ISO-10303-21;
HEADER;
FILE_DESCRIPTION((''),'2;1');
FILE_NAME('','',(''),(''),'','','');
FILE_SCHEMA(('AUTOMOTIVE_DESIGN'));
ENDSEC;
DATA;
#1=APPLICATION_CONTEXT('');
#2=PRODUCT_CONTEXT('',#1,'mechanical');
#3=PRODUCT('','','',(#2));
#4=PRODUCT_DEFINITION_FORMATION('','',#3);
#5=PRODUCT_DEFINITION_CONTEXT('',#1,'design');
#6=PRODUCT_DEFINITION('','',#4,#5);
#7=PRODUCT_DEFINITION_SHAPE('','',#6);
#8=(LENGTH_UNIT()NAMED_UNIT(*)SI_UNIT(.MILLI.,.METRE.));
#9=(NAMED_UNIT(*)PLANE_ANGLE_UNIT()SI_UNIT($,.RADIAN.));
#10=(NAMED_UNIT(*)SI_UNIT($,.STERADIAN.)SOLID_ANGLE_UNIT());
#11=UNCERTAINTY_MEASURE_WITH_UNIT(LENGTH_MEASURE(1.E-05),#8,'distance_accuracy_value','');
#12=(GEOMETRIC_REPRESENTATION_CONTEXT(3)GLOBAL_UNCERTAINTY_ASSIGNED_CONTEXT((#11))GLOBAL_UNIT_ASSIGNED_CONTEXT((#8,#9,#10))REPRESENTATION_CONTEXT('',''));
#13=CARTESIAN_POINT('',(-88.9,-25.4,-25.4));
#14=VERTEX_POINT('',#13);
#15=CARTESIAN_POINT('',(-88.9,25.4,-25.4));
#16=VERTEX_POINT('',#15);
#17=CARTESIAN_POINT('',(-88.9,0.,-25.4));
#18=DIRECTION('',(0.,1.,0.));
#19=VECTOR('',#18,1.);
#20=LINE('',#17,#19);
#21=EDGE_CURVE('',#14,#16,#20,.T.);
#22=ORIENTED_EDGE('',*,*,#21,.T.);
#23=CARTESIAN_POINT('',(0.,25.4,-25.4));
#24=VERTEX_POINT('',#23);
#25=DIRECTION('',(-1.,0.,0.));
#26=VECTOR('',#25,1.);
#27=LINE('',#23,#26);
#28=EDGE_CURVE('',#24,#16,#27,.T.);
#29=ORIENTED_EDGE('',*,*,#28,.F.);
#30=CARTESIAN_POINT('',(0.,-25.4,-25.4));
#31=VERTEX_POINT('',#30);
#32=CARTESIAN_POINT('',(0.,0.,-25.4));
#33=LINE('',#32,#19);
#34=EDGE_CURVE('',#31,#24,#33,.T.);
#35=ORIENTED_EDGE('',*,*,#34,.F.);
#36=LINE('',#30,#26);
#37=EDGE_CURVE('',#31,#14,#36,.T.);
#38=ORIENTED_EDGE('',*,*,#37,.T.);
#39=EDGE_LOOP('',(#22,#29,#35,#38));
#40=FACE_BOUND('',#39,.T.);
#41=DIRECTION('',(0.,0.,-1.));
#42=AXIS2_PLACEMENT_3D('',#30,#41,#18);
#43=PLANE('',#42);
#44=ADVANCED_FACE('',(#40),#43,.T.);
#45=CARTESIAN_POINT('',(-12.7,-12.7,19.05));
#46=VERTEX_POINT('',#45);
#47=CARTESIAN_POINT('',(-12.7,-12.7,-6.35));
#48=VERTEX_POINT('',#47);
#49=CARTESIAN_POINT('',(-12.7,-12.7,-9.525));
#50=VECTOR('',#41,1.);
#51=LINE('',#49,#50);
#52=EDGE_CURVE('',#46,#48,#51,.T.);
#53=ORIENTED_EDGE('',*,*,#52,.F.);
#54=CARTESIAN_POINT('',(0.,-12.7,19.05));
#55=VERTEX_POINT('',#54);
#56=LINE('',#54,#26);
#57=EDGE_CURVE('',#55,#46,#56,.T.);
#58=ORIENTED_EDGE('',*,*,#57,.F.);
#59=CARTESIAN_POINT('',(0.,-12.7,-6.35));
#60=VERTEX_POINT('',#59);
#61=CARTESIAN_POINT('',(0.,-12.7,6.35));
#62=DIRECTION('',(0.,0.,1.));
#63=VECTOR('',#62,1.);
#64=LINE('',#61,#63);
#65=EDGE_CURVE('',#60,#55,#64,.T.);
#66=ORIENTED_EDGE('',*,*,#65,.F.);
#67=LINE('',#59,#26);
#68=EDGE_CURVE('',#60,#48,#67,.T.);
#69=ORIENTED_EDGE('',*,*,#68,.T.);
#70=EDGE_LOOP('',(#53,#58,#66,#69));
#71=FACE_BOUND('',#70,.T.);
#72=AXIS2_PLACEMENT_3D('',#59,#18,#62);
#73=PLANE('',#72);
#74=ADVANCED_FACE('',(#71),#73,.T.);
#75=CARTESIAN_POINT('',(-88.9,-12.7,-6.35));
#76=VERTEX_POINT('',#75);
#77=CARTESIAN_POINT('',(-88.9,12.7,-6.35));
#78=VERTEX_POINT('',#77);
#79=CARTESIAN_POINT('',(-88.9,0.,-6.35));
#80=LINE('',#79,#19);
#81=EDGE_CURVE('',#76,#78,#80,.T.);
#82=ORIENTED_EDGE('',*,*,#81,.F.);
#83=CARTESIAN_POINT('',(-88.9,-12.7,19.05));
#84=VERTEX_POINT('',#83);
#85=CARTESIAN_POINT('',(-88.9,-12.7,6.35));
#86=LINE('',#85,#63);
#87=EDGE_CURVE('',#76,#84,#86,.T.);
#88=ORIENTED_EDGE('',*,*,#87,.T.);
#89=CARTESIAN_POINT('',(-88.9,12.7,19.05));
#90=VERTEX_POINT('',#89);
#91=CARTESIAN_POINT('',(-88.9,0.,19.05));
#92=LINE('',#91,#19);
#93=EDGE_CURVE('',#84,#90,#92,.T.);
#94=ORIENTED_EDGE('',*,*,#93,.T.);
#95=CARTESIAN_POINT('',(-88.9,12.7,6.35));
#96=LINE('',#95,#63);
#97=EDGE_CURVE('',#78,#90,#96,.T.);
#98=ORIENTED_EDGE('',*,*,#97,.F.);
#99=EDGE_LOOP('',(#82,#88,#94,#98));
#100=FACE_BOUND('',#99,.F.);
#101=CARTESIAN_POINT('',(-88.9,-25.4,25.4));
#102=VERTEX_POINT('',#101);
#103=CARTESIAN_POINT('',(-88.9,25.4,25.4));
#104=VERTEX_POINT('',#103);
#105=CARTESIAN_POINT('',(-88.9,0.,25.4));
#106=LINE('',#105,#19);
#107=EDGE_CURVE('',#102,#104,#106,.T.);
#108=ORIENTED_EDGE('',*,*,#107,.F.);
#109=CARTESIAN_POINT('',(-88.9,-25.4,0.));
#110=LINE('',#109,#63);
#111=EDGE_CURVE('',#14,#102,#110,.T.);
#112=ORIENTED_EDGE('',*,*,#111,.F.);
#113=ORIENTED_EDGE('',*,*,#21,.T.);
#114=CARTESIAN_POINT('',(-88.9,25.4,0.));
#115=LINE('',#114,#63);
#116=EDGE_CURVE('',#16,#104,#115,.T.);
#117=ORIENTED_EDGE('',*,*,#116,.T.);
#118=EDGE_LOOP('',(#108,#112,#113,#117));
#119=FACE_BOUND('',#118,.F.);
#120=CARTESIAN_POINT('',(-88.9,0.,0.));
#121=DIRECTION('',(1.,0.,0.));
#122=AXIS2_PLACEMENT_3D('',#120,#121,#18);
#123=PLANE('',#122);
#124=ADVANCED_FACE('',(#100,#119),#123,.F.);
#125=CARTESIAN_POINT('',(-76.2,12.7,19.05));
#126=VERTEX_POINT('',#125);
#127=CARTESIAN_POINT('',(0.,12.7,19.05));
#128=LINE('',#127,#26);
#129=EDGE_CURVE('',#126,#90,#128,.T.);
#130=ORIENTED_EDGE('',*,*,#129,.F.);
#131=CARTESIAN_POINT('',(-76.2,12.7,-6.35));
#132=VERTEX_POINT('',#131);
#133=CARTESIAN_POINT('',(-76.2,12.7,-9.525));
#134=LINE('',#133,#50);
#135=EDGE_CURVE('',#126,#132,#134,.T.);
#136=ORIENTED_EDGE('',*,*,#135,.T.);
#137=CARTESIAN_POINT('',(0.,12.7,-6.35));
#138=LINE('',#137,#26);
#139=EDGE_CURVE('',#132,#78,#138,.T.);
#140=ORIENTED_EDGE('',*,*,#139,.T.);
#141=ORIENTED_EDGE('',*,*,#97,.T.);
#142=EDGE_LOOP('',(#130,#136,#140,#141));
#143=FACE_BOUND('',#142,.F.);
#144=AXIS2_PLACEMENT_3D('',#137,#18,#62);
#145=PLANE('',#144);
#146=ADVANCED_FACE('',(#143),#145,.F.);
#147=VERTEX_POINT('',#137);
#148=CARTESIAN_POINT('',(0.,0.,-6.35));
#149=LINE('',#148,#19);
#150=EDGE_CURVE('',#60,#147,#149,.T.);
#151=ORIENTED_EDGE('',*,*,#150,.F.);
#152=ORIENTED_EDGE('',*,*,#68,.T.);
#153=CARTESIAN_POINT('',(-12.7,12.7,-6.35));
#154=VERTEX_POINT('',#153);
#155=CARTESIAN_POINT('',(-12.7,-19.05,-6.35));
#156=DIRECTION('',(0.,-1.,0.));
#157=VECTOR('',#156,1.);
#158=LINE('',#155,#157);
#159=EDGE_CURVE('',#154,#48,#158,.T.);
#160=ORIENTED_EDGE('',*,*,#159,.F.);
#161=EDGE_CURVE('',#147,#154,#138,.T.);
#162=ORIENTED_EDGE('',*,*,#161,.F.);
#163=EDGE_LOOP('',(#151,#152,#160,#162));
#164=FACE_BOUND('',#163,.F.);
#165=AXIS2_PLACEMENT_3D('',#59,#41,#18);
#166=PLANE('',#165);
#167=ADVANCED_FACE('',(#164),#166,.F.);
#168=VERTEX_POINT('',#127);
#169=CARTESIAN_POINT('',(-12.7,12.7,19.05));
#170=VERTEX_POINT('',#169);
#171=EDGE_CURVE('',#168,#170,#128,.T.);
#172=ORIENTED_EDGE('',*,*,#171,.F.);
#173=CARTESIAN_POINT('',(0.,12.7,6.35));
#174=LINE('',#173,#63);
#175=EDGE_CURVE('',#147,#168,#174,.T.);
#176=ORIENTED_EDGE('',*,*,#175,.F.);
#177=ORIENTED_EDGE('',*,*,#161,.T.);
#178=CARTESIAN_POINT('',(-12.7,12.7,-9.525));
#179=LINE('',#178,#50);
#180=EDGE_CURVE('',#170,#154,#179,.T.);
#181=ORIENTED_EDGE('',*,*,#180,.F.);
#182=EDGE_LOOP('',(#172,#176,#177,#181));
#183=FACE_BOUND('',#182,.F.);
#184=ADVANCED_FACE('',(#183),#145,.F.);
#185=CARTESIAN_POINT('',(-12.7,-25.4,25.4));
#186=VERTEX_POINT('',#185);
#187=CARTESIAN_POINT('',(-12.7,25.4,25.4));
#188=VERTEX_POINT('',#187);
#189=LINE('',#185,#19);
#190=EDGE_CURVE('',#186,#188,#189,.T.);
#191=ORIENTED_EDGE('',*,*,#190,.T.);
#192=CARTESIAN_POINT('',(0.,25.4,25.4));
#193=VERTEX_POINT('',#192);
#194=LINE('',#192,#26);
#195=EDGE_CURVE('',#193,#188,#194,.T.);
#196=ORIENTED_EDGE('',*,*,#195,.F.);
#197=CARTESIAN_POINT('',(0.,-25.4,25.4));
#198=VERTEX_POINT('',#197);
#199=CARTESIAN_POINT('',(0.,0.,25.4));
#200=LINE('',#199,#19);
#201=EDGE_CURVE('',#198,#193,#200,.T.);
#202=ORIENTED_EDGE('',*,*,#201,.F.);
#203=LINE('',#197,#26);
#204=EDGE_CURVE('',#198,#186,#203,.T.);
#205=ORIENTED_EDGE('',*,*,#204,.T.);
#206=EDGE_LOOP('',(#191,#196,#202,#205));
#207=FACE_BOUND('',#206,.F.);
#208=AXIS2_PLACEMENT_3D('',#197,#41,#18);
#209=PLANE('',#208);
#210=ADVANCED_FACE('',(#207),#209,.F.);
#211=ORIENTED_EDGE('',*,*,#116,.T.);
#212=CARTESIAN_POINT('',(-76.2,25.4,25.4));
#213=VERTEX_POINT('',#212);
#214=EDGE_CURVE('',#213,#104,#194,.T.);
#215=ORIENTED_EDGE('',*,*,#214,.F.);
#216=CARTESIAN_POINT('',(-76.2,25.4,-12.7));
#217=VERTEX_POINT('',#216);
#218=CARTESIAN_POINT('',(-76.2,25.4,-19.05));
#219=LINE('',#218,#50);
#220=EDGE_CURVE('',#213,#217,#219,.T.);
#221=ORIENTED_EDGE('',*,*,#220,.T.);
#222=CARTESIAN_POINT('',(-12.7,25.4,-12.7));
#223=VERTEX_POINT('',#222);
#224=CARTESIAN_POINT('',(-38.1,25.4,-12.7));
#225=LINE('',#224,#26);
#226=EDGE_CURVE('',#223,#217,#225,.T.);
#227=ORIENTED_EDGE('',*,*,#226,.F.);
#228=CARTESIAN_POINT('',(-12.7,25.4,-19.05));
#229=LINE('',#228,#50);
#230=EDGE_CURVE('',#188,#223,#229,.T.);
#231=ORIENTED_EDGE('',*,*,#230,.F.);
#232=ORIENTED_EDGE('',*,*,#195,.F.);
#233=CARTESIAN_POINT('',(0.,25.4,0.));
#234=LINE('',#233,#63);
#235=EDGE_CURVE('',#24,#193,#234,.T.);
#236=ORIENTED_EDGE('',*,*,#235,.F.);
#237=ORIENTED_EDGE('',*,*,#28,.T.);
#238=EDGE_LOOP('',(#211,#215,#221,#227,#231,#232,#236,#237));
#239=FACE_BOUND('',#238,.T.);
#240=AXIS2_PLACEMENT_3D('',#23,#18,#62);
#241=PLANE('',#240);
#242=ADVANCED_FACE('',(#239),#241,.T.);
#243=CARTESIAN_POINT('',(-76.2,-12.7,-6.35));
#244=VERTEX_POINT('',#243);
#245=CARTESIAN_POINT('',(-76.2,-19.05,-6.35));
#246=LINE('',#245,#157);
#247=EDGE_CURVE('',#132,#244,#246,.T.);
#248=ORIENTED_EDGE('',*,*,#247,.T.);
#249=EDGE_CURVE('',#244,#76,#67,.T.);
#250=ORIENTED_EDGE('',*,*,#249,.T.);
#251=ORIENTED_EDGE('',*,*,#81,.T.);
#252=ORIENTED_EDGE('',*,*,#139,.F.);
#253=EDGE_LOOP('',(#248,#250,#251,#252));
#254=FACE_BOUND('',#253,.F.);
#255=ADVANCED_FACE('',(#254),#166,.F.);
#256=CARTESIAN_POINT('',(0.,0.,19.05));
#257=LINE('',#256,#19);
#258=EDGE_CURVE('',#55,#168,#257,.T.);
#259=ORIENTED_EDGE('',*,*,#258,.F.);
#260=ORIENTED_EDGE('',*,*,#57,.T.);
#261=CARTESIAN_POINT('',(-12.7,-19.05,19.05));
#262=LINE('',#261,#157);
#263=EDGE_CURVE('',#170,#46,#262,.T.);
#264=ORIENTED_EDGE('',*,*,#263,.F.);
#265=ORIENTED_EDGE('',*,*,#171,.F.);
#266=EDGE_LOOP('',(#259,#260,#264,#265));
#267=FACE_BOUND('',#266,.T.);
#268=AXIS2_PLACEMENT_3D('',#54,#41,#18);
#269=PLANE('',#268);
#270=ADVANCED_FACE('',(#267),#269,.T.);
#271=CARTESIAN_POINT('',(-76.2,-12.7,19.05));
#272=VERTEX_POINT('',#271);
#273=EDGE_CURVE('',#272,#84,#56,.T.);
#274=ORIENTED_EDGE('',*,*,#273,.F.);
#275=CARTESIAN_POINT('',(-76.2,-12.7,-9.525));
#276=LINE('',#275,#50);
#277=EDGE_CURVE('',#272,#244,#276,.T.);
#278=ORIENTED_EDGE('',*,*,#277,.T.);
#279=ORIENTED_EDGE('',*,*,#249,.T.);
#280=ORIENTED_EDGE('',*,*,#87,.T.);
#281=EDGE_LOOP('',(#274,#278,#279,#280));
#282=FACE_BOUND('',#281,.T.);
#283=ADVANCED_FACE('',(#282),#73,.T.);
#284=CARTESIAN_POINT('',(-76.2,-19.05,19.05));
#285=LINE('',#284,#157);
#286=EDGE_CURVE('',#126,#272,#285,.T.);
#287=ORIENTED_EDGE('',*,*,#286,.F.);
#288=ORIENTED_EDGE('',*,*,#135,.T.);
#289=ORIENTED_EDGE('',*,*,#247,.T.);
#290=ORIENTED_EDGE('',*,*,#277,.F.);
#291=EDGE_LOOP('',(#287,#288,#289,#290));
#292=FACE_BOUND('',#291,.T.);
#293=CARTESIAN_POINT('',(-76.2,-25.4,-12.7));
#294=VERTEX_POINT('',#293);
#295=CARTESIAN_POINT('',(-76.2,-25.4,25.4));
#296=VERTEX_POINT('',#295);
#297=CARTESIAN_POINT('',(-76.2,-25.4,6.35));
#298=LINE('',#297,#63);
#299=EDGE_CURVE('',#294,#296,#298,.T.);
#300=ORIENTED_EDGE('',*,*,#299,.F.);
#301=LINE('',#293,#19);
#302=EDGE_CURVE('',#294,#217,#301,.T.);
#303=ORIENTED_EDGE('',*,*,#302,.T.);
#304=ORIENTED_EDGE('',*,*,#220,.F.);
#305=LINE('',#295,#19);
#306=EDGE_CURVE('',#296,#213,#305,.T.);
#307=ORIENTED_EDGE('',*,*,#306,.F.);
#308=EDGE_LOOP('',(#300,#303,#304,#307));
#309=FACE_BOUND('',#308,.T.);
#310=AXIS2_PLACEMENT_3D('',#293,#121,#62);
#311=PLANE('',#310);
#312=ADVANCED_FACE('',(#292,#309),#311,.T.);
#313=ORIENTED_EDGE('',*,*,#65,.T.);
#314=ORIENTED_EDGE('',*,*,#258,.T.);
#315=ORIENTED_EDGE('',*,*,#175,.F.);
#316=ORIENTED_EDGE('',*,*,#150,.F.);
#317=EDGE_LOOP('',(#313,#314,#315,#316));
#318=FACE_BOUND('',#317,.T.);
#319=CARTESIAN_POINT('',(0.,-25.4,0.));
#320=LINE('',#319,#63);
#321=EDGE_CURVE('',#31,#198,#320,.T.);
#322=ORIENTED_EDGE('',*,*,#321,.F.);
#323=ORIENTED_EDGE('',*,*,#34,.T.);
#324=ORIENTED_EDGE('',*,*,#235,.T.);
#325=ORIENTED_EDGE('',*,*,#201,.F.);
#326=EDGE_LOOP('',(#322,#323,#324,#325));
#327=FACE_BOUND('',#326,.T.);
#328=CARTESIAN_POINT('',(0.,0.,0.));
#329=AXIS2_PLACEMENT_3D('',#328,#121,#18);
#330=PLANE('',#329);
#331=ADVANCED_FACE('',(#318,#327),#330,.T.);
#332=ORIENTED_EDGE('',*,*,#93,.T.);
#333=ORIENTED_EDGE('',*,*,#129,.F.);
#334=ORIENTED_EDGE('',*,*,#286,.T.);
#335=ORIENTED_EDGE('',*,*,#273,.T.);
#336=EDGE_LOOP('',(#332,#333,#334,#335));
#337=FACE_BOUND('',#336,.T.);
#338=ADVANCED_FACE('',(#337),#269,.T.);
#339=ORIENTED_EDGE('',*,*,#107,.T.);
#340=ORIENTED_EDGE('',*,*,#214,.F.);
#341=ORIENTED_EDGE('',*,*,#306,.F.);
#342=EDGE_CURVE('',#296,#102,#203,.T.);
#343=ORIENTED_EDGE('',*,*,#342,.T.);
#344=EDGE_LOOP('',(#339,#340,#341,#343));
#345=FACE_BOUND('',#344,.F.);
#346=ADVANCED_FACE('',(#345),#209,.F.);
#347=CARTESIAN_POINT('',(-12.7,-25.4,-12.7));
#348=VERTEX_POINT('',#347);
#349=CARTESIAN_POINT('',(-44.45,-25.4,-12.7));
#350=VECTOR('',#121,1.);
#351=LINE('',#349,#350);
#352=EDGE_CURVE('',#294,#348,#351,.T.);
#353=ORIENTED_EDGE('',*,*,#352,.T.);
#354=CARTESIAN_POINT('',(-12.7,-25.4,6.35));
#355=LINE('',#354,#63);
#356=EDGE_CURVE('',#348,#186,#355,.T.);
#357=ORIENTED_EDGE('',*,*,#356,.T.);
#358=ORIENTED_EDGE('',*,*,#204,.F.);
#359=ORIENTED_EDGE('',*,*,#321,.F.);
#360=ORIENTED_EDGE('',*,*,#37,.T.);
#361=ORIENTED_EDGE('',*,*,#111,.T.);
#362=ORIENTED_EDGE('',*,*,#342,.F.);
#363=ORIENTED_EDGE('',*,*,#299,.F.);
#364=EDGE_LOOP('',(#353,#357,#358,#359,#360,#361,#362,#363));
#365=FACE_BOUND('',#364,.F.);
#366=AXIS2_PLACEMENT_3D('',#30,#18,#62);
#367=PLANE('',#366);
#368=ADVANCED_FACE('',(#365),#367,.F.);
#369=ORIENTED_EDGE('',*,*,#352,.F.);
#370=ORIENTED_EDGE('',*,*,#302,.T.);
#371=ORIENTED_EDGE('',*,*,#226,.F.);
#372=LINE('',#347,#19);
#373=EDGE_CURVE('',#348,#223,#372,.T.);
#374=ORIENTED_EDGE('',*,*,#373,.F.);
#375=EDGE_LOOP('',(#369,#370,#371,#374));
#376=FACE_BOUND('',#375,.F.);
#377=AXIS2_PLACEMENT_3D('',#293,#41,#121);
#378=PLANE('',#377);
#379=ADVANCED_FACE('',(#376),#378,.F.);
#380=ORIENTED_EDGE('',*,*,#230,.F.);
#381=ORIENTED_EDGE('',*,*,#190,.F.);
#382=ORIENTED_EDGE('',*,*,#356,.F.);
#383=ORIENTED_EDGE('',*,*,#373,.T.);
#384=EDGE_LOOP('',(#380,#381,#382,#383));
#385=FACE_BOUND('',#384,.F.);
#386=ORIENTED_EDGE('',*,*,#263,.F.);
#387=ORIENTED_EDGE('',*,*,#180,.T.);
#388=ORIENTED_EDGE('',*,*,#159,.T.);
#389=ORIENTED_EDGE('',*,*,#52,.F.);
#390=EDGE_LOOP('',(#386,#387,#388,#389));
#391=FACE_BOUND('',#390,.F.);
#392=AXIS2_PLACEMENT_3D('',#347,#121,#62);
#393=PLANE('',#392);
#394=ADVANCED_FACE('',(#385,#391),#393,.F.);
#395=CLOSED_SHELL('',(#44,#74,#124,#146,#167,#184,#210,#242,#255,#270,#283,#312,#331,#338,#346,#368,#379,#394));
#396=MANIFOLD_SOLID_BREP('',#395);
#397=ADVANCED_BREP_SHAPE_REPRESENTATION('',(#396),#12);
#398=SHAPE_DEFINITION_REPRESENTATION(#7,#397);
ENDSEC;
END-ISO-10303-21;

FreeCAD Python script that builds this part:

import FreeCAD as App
import Part
import Sketcher

V = App.Vector
Q = App.Units.Quantity


def add_polygon(sketch, points):
    """Adds a closed chain of lines whose ends are joined by coincident constraints."""
    first, n = sketch.GeometryCount, len(points)
    for a, b in zip(points, points[1:] + points[:1]):
        sketch.addGeometry(Part.LineSegment(App.Vector(*a, 0), App.Vector(*b, 0)), False)
    for i in range(n):
        sketch.addConstraint(Sketcher.Constraint("Coincident", first + i, 2, first + (i + 1) % n, 1))

doc = App.newDocument("Part")
body = doc.addObject("PartDesign::Body", "Body")

# Sketch on YZ plane
sketch1 = doc.addObject("Sketcher::SketchObject", "Sketch")
body.addObject(sketch1)
sketch1.AttachmentSupport = (doc.YZ_Plane, [""])
sketch1.MapMode = "FlatFace"
add_polygon(sketch1, [(-25, 25), (-25, -25), (25, -25), (25, 25)])  # lines 0-3
add_polygon(sketch1, [(13, -6), (-13, -6), (-13, 19), (13, 19)])  # lines 4-7
sketch1.addConstraint(Sketcher.Constraint("Vertical", 0))
sketch1.addConstraint(Sketcher.Constraint("Horizontal", 1))
sketch1.addConstraint(Sketcher.Constraint("Vertical", 2))
sketch1.addConstraint(Sketcher.Constraint("Horizontal", 3))
sketch1.addConstraint(Sketcher.Constraint("Horizontal", 4))
sketch1.addConstraint(Sketcher.Constraint("Vertical", 5))
sketch1.addConstraint(Sketcher.Constraint("Horizontal", 6))
sketch1.addConstraint(Sketcher.Constraint("Vertical", 7))
sketch1.addConstraint(Sketcher.Constraint("Symmetric", 0, 2, 2, 2, -1, 1))
sketch1.addConstraint(Sketcher.Constraint("Equal", 3, 0))
sketch1.addConstraint(Sketcher.Constraint("Equal", 6, 5))
sketch1.addConstraint(Sketcher.Constraint("DistanceX", 1, 1, 1, 2, Q("2 in")))
sketch1.addConstraint(Sketcher.Constraint("DistanceX", 4, 2, 4, 1, Q("1 in")))
sketch1.addConstraint(Sketcher.Constraint("DistanceX", 4, 2, -1, 1, Q("0.5 in")))
sketch1.addConstraint(Sketcher.Constraint("DistanceY", 4, 2, -1, 1, Q("0.25 in")))
pad1 = doc.addObject("PartDesign::Pad", "Pad")
body.addObject(pad1)
pad1.Profile = sketch1
pad1.Length = Q("3.5 in")
pad1.Reversed = True

# Sketch on XZ plane
sketch2 = doc.addObject("Sketcher::SketchObject", "Sketch001")
body.addObject(sketch2)
sketch2.AttachmentSupport = (doc.XZ_Plane, [""])
sketch2.MapMode = "FlatFace"
sketch2.AttachmentOffset = App.Placement(V(0, 0, 1 * 25.4), App.Rotation())
add_polygon(sketch2, [(-76, 25), (-76, -13), (-13, -13), (-13, 25)])  # lines 0-3
sketch2.addConstraint(Sketcher.Constraint("Vertical", 0))
sketch2.addConstraint(Sketcher.Constraint("Horizontal", 1))
sketch2.addConstraint(Sketcher.Constraint("Vertical", 2))
sketch2.addConstraint(Sketcher.Constraint("Horizontal", 3))
sketch2.addConstraint(Sketcher.Constraint("DistanceX", 1, 1, 1, 2, Q("2.5 in")))
sketch2.addConstraint(Sketcher.Constraint("DistanceY", 0, 2, 0, 1, Q("1.5 in")))
sketch2.addConstraint(Sketcher.Constraint("DistanceX", 0, 2, -1, 1, Q("3 in")))
sketch2.addConstraint(Sketcher.Constraint("DistanceY", -1, 1, 2, 2, Q("1 in")))
pocket1 = doc.addObject("PartDesign::Pocket", "Pocket")
body.addObject(pocket1)
pocket1.Profile = sketch2
pocket1.Type = "ThroughAll"

doc.recompute()
